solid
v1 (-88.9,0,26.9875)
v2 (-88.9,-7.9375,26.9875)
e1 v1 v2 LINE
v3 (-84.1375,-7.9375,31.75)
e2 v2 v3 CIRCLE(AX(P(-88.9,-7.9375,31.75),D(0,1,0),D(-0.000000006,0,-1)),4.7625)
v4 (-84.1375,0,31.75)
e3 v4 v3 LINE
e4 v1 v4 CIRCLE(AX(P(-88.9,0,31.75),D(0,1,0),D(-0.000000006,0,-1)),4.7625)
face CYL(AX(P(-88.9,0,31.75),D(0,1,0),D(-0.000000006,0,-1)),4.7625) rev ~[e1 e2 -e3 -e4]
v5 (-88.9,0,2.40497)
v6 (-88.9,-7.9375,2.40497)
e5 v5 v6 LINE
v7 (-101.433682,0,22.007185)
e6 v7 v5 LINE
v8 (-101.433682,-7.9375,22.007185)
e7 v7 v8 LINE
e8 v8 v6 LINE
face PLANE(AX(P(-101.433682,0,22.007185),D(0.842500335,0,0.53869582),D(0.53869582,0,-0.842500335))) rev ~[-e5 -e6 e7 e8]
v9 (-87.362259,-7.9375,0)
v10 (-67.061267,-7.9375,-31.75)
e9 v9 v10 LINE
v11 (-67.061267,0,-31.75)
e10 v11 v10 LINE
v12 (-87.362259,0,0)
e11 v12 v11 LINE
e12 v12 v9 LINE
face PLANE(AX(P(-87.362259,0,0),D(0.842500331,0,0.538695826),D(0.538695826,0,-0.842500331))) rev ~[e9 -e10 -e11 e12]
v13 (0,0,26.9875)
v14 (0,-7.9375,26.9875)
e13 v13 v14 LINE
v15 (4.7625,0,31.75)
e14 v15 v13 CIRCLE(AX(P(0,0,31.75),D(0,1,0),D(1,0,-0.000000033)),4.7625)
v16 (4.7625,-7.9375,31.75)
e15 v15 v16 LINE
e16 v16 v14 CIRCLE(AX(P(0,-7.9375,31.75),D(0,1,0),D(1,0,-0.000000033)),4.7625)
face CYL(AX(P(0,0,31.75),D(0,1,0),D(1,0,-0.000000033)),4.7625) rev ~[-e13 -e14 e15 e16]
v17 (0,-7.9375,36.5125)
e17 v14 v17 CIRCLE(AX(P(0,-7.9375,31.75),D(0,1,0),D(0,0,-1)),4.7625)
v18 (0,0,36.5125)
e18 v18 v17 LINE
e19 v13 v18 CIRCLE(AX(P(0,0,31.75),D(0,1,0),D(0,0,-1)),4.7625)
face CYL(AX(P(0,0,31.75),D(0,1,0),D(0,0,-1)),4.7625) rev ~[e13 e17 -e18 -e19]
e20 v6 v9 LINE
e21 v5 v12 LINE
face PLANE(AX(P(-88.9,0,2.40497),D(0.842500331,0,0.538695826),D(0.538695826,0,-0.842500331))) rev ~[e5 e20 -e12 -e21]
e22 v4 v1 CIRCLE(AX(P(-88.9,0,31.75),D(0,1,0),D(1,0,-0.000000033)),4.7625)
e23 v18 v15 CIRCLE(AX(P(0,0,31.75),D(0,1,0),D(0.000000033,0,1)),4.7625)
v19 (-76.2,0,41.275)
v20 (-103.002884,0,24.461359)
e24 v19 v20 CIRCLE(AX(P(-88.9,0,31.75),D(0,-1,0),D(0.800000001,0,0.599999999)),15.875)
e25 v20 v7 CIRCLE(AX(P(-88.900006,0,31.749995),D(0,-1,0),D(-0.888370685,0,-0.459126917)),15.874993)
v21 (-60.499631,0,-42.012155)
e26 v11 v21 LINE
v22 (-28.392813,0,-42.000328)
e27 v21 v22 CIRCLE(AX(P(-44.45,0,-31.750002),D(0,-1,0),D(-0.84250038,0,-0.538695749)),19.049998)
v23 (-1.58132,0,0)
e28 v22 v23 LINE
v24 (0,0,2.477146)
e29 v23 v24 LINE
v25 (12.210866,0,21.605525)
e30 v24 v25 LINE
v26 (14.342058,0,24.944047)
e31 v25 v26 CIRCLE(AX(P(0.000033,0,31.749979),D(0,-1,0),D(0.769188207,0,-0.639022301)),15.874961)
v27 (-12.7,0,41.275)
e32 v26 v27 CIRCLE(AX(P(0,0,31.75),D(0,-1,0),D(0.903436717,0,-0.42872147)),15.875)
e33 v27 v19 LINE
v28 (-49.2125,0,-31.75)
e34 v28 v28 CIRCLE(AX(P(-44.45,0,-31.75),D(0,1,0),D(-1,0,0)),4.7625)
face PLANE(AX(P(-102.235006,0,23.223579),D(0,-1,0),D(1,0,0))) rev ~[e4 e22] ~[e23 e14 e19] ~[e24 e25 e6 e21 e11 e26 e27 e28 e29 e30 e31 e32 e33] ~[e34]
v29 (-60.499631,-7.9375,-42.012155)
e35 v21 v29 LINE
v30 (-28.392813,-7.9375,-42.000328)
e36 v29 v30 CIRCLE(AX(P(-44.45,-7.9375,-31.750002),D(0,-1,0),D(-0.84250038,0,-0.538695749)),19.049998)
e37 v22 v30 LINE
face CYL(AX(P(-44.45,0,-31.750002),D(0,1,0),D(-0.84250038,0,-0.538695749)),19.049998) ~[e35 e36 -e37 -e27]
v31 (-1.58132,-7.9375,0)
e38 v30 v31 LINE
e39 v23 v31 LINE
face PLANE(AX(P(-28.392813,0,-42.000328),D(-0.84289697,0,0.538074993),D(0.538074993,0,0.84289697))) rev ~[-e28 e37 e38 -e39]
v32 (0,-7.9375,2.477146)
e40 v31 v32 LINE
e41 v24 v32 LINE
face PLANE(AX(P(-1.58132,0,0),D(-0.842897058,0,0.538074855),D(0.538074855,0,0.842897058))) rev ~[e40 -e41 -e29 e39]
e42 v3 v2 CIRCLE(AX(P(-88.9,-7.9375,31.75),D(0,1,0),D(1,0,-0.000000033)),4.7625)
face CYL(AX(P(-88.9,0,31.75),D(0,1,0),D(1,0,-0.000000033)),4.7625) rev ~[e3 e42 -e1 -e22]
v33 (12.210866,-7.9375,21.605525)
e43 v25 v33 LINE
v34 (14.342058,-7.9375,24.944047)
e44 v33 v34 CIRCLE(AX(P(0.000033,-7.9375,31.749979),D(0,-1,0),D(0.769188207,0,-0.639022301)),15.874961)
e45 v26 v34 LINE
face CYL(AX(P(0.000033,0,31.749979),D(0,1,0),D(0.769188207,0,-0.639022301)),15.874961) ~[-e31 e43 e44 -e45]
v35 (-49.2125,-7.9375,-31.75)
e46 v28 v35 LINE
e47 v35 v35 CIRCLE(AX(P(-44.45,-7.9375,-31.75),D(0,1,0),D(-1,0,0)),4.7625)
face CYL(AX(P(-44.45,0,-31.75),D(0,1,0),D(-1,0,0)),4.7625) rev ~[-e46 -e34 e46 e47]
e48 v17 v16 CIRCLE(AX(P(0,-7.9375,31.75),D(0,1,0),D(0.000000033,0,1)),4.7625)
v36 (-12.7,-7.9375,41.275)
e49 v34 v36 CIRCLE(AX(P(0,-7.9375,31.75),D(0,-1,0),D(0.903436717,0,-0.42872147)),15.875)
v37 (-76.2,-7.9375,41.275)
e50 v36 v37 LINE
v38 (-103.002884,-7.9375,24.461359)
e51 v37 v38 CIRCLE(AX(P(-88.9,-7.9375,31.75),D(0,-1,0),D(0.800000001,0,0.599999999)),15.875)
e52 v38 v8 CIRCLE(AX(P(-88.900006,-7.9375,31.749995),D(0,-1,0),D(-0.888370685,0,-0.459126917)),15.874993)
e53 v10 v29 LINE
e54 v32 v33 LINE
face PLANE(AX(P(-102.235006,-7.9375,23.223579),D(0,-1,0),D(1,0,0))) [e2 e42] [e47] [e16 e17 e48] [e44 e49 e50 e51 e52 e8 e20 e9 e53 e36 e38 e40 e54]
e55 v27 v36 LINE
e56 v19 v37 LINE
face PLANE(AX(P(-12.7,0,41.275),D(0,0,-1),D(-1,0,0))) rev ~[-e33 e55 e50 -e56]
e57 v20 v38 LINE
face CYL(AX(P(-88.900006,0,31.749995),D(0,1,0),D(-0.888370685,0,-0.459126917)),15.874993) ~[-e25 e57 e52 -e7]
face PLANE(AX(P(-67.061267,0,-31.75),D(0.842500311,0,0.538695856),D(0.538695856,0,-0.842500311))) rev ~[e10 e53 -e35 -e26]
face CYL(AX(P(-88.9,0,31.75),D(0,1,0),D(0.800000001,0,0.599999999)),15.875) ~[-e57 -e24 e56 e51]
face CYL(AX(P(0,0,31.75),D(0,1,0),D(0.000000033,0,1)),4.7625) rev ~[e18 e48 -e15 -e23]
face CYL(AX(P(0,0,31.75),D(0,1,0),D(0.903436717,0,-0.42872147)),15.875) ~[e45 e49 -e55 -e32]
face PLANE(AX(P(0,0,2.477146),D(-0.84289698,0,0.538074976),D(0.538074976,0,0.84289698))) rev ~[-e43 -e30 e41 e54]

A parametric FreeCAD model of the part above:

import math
import FreeCAD as App
import Part
import Sketcher

V = App.Vector
Q = App.Units.Quantity

doc = App.newDocument("Part")
params = doc.addObject("Spreadsheet::Sheet", "Params")
for row, (alias, value) in enumerate([
    ("sketch1_radius", "0.7499999 in"),
    ("sketch1_diameter", "0.375 in"),
    ("sketch1_width", "2.5 in"),
    ("sketch1_radius2", "0.625 in"),
    ("sketch1_radius3", "0.625 in"),
    ("pad1_length", "0.3125 in"),
], start=1):
    params.set(f"A{row}", alias)
    params.set(f"B{row}", "=" + value)
    params.setAlias(f"B{row}", alias)

body = doc.addObject("PartDesign::Body", "Body")

sketch1 = body.newObject("Sketcher::SketchObject", "Sketch")
sketch1.AttachmentSupport = (doc.getObject("XZ_Plane"), [""])
sketch1.MapMode = "FlatFace"
sketch1.addGeometry([
    Part.ArcOfCircle(Part.Circle(V(-88.900006, 31.749995, 0), V(0, 0, 1), 15.874993), math.radians(-152.669217), math.radians(-142.140983)),
    Part.LineSegment(V(-101.433682, 22.007185, 0), V(-88.9, 2.40497, 0)),
    Part.LineSegment(V(-88.9, 2.40497, 0), V(-87.362259, 0, 0)),
    Part.LineSegment(V(-87.362259, 0, 0), V(-67.061267, -31.75, 0)),
    Part.LineSegment(V(-67.061267, -31.75, 0), V(-60.499631, -42.012155, 0)),
    Part.ArcOfCircle(Part.Circle(V(-44.45, -31.750002, 0), V(0, 0, 1), 19.049998), math.radians(-147.405103), math.radians(-32.552685)),
    Part.LineSegment(V(-28.392813, -42.000328, 0), V(-1.58132, 0, 0)),
    Part.LineSegment(V(-1.58132, 0, 0), V(0, 2.477146, 0)),
    Part.LineSegment(V(0, 2.477146, 0), V(12.210866, 21.605525, 0)),
    Part.ArcOfCircle(Part.Circle(V(0.000033, 31.749979, 0), V(0, 0, 1), 15.874961), math.radians(-39.718954), math.radians(-25.386431)),
    Part.ArcOfCircle(Part.Circle(V(0, 31.75, 0), V(0, 0, 1), 15.875), math.radians(-25.386449), math.radians(143.130104)),
    Part.LineSegment(V(-12.7, 41.275, 0), V(-76.2, 41.275, 0)),
    Part.ArcOfCircle(Part.Circle(V(-88.9, 31.75, 0), V(0, 0, 1), 15.875), math.radians(36.869898), math.radians(207.330788)),
    Part.Circle(V(-44.45, -31.75, 0), V(0, 0, 1), 4.7625),
    Part.ArcOfCircle(Part.Circle(V(-88.9, 31.75, 0), V(0, 0, 1), 4.7625), math.radians(0), math.radians(270)),
    Part.ArcOfCircle(Part.Circle(V(-88.9, 31.75, 0), V(0, 0, 1), 4.7625), math.radians(-89.999998), math.radians(-0.000002)),
    Part.ArcOfCircle(Part.Circle(V(0, 31.75, 0), V(0, 0, 1), 4.7625), math.radians(0.000002), math.radians(89.999998)),
    Part.ArcOfCircle(Part.Circle(V(0, 31.75, 0), V(0, 0, 1), 4.7625), math.radians(-89.999998), math.radians(-0.000002)),
    Part.ArcOfCircle(Part.Circle(V(0, 31.75, 0), V(0, 0, 1), 4.7625), math.radians(90), math.radians(270)),
], False)
sketch1.addConstraint([
    Sketcher.Constraint("Coincident", 0, 2, 1, 1),
    Sketcher.Constraint("Coincident", 1, 2, 2, 1),
    Sketcher.Constraint("Coincident", 2, 2, 3, 1),
    Sketcher.Constraint("Coincident", 3, 2, 4, 1),
    Sketcher.Constraint("Coincident", 4, 2, 5, 1),
    Sketcher.Constraint("Coincident", 5, 2, 6, 1),
    Sketcher.Constraint("Coincident", 6, 2, 7, 1),
    Sketcher.Constraint("Coincident", 7, 2, 8, 1),
    Sketcher.Constraint("Coincident", 8, 2, 9, 1),
    Sketcher.Constraint("Coincident", 9, 2, 10, 1),
    Sketcher.Constraint("Coincident", 10, 2, 11, 1),
    Sketcher.Constraint("Coincident", 11, 2, 12, 1),
    Sketcher.Constraint("Coincident", 12, 2, 0, 1),
    Sketcher.Constraint("Coincident", 14, 1, 15, 2),
    Sketcher.Constraint("Coincident", 15, 1, 14, 2),
    Sketcher.Constraint("Coincident", 16, 1, 17, 2),
    Sketcher.Constraint("Coincident", 17, 1, 18, 2),
    Sketcher.Constraint("Coincident", 18, 1, 16, 2),
    Sketcher.Constraint("Horizontal", 11),
    Sketcher.Constraint("Coincident", 12, 3, 0, 3),
    Sketcher.Constraint("Coincident", 13, 3, 5, 3),
    Sketcher.Constraint("Coincident", 14, 3, 0, 3),
    Sketcher.Constraint("Coincident", 16, 3, 10, 3),
    Sketcher.Constraint("Coincident", 17, 3, 10, 3),
    Sketcher.Constraint("PointOnObject", 10, 3, -2),
    Sketcher.Constraint("PointOnObject", 18, 3, -2),
    Sketcher.Constraint("PointOnObject", 2, 2, -1),
    Sketcher.Constraint("PointOnObject", 6, 2, -1),
    Sketcher.Constraint("PointOnObject", 7, 2, -2),
    Sketcher.Constraint("PointOnObject", 17, 1, -2),
    Sketcher.Constraint("PointOnObject", 18, 1, -2),
    Sketcher.Constraint("Radius", 5, Q("0.7499999 in")),
    Sketcher.Constraint("Diameter", 13, Q("0.375 in")),
    Sketcher.Constraint("DistanceX", 11, 2, 11, 1, Q("2.5 in")),
    Sketcher.Constraint("DistanceX", 11, 2, -1, 1, Q("3 in")),
    Sketcher.Constraint("Radius", 10, Q("0.625 in")),
    Sketcher.Constraint("Radius", 12, Q("0.625 in")),
    Sketcher.Constraint("Radius", 14, Q("0.1875 in")),
    Sketcher.Constraint("Radius", 15, Q("0.1875 in")),
    Sketcher.Constraint("Radius", 16, Q("0.1875 in")),
    Sketcher.Constraint("DistanceX", 12, 3, -1, 1, Q("3.5 in")),
    Sketcher.Constraint("DistanceX", 1, 2, -1, 1, Q("3.5 in")),
    Sketcher.Constraint("DistanceX", 15, 1, -1, 1, Q("3.5 in")),
    Sketcher.Constraint("DistanceY", 5, 3, 0, 3, Q("2.4999999 in")),
    Sketcher.Constraint("DistanceY", -1, 1, 0, 3, Q("1.2499998 in")),
    Sketcher.Constraint("DistanceX", 5, 3, -1, 1, Q("1.75 in")),
    Sketcher.Constraint("DistanceY", 3, 2, -1, 1, Q("1.25 in")),
    Sketcher.Constraint("DistanceY", -1, 1, 14, 1, Q("1.25 in")),
    Sketcher.Constraint("DistanceY", -1, 1, 16, 1, Q("1.25 in")),
    Sketcher.Constraint("Radius", 9, Q("15.874961 mm")),
    Sketcher.Constraint("DistanceX", 12, 2, 0, 2, Q("1.569202 mm")),
    Sketcher.Constraint("DistanceY", -1, 1, 9, 3, Q("31.749979 mm")),
    Sketcher.Constraint("DistanceY", -1, 1, 1, 2, Q("2.40497 mm")),
    Sketcher.Constraint("DistanceX", 2, 2, -1, 1, Q("87.362259 mm")),
    Sketcher.Constraint("DistanceX", 4, 2, -1, 1, Q("60.499631 mm")),
    Sketcher.Constraint("DistanceY", 5, 2, -1, 1, Q("42.000328 mm")),
    Sketcher.Constraint("DistanceX", 6, 2, -1, 1, Q("1.58132 mm")),
    Sketcher.Constraint("DistanceX", -1, 1, 9, 2, Q("14.342058 mm")),
    Sketcher.Constraint("DistanceY", -1, 1, 12, 2, Q("24.461359 mm")),
    Sketcher.Constraint("DistanceX", 2, 2, 3, 2, Q("20.300992 mm")),
    Sketcher.Constraint("DistanceY", 8, 2, 9, 2, Q("3.338522 mm")),
    Sketcher.Constraint("Distance", 7, Q("2.938848 mm")),
])
sketch1.setExpression("Constraints[31]", "Params.sketch1_radius")
sketch1.setExpression("Constraints[32]", "Params.sketch1_diameter")
sketch1.setExpression("Constraints[33]", "Params.sketch1_width")
sketch1.setExpression("Constraints[35]", "Params.sketch1_radius2")
sketch1.setExpression("Constraints[36]", "Params.sketch1_radius3")
pad1 = body.newObject("PartDesign::Pad", "Pad")
pad1.Profile = sketch1
pad1.setExpression("Length", "Params.pad1_length")

doc.recompute()
